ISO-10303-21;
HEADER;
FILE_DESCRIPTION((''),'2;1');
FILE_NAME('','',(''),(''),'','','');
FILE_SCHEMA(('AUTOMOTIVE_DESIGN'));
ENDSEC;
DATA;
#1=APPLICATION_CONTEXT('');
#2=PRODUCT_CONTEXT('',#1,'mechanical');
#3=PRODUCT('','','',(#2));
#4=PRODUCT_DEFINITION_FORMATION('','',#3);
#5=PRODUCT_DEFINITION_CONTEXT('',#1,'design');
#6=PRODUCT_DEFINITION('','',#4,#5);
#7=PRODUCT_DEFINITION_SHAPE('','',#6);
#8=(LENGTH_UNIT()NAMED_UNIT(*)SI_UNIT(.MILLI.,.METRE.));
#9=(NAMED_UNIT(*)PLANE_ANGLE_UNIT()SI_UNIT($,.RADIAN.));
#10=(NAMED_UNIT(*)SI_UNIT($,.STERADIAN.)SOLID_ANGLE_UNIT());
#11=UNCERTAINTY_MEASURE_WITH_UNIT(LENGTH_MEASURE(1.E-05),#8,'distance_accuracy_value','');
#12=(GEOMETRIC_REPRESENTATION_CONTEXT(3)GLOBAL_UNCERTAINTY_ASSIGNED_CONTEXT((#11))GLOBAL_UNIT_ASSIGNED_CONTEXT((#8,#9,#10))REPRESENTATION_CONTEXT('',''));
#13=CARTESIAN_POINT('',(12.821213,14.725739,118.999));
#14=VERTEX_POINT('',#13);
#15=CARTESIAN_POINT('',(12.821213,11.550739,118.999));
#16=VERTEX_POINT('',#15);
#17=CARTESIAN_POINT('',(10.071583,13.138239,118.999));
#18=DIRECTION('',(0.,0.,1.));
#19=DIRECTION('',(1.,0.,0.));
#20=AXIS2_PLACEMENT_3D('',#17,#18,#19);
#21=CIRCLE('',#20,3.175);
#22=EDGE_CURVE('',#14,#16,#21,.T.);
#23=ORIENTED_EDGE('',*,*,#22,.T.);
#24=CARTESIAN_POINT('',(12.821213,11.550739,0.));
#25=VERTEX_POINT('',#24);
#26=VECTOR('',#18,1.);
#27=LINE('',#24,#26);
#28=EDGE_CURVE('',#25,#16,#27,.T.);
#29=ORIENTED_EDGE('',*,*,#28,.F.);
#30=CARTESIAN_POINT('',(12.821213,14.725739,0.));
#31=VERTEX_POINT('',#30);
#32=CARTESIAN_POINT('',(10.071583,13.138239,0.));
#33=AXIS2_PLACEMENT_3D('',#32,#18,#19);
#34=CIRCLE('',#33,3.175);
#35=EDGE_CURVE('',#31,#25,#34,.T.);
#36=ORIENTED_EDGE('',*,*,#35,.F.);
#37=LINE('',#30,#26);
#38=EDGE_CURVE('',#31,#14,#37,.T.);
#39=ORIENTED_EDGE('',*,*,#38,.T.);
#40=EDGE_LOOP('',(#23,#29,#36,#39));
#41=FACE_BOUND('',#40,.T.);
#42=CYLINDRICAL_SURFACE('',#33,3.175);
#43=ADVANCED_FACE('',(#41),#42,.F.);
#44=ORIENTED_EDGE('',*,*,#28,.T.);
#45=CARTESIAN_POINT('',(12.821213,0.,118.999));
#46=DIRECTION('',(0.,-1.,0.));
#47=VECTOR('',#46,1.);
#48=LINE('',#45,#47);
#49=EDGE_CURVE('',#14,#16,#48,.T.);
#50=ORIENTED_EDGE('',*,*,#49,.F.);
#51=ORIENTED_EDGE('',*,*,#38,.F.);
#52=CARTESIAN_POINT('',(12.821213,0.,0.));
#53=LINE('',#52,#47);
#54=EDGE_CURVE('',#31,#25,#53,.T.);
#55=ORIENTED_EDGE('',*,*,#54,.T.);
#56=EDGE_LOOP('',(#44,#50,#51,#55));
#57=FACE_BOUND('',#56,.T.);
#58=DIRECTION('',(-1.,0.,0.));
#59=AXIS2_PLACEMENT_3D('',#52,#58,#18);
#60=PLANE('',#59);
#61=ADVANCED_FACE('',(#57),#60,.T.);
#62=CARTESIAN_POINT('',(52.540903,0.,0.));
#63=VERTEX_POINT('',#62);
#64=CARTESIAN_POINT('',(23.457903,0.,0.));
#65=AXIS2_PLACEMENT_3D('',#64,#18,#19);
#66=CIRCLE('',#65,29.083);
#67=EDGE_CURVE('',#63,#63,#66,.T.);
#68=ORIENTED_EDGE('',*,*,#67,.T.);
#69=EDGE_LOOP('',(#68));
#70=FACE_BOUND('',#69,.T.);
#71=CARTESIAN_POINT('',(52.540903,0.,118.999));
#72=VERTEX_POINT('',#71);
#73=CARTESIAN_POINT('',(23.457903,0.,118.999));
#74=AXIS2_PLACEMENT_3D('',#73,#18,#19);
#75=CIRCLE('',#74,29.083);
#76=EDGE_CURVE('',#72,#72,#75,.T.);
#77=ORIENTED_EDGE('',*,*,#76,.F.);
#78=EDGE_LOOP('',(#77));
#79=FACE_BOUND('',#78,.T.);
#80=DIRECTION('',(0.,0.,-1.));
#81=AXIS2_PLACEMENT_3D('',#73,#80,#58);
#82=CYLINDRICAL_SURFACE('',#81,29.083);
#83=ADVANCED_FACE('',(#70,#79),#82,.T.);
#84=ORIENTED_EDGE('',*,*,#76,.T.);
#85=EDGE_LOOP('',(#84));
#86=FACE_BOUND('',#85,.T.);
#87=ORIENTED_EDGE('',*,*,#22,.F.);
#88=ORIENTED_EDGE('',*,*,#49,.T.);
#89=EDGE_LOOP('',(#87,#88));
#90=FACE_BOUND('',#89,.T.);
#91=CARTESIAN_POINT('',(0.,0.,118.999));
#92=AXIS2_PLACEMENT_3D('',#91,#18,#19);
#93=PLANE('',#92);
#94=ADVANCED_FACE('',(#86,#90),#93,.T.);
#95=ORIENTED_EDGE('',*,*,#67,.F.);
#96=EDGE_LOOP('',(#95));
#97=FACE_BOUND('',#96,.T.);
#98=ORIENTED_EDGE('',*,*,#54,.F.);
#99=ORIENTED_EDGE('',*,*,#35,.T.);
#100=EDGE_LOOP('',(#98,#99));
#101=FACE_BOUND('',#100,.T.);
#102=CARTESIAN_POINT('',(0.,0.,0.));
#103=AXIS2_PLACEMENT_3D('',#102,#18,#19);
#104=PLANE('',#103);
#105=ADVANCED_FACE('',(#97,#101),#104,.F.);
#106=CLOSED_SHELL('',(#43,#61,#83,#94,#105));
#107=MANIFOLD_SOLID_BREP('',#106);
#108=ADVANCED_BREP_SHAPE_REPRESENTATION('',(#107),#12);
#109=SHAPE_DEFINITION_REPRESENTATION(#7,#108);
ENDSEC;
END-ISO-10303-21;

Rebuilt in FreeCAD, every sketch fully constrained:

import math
import FreeCAD as App
import Part
import Sketcher

V = App.Vector
Q = App.Units.Quantity

doc = App.newDocument("Part")
params = doc.addObject("Spreadsheet::Sheet", "Params")
for row, (alias, value) in enumerate([
    ("sketch1_diameter", "2.29 in"),
    ("pad1_length", "4.685 in"),
    ("sketch2_radius", "0.125 in"),
    ("sketch2_height", "0.125 in"),
], start=1):
    params.set(f"A{row}", alias)
    params.set(f"B{row}", "=" + value)
    params.setAlias(f"B{row}", alias)

body = doc.addObject("PartDesign::Body", "Body")

sketch1 = body.newObject("Sketcher::SketchObject", "Sketch")
sketch1.AttachmentSupport = (doc.getObject("XY_Plane"), [""])
sketch1.MapMode = "FlatFace"
sketch1.addGeometry(Part.Circle(V(23, 0, 0), V(0, 0, 1), 29), False)
sketch1.addConstraint(Sketcher.Constraint("PointOnObject", 0, 3, -1))
sketch1.addConstraint(Sketcher.Constraint("Diameter", 0, Q("2.29 in")))
sketch1.addConstraint(Sketcher.Constraint("DistanceX", -1, 1, 0, 3, 23.457903))
sketch1.setExpression("Constraints[1]", "Params.sketch1_diameter")
pad1 = body.newObject("PartDesign::Pad", "Pad")
pad1.Profile = sketch1
pad1.setExpression("Length", "Params.pad1_length")

sketch2 = body.newObject("Sketcher::SketchObject", "Sketch001")
sketch2.AttachmentSupport = (doc.getObject("XY_Plane"), [""])
sketch2.MapMode = "FlatFace"
sketch2.AttachmentOffset = App.Placement(V(0, 0, 4.685 * 25.4), App.Rotation())
sketch2.addGeometry(Part.LineSegment(V(12.8, 11.6, 0), V(12.8, 14.7, 0)), False)
sketch2.addGeometry(Part.ArcOfCircle(Part.Circle(V(10.1, 13.1, 0), V(0, 0, 1), 3.2), math.radians(30), math.radians(330)), False)
sketch2.addConstraint(Sketcher.Constraint("Coincident", 0, 1, 1, 2))
sketch2.addConstraint(Sketcher.Constraint("Coincident", 1, 1, 0, 2))
sketch2.addConstraint(Sketcher.Constraint("Vertical", 0))
sketch2.addConstraint(Sketcher.Constraint("Radius", 1, Q("0.125 in")))
sketch2.addConstraint(Sketcher.Constraint("DistanceY", 0, 1, 0, 2, Q("0.125 in")))
sketch2.addConstraint(Sketcher.Constraint("DistanceY", -1, 1, 1, 3, 13.138239))
sketch2.addConstraint(Sketcher.Constraint("DistanceX", -1, 1, 1, 3, 10.071583))
sketch2.setExpression("Constraints[3]", "Params.sketch2_radius")
sketch2.setExpression("Constraints[4]", "Params.sketch2_height")
pocket1 = body.newObject("PartDesign::Pocket", "Pocket")
pocket1.Profile = sketch2
pocket1.Type = "ThroughAll"

doc.recompute()
